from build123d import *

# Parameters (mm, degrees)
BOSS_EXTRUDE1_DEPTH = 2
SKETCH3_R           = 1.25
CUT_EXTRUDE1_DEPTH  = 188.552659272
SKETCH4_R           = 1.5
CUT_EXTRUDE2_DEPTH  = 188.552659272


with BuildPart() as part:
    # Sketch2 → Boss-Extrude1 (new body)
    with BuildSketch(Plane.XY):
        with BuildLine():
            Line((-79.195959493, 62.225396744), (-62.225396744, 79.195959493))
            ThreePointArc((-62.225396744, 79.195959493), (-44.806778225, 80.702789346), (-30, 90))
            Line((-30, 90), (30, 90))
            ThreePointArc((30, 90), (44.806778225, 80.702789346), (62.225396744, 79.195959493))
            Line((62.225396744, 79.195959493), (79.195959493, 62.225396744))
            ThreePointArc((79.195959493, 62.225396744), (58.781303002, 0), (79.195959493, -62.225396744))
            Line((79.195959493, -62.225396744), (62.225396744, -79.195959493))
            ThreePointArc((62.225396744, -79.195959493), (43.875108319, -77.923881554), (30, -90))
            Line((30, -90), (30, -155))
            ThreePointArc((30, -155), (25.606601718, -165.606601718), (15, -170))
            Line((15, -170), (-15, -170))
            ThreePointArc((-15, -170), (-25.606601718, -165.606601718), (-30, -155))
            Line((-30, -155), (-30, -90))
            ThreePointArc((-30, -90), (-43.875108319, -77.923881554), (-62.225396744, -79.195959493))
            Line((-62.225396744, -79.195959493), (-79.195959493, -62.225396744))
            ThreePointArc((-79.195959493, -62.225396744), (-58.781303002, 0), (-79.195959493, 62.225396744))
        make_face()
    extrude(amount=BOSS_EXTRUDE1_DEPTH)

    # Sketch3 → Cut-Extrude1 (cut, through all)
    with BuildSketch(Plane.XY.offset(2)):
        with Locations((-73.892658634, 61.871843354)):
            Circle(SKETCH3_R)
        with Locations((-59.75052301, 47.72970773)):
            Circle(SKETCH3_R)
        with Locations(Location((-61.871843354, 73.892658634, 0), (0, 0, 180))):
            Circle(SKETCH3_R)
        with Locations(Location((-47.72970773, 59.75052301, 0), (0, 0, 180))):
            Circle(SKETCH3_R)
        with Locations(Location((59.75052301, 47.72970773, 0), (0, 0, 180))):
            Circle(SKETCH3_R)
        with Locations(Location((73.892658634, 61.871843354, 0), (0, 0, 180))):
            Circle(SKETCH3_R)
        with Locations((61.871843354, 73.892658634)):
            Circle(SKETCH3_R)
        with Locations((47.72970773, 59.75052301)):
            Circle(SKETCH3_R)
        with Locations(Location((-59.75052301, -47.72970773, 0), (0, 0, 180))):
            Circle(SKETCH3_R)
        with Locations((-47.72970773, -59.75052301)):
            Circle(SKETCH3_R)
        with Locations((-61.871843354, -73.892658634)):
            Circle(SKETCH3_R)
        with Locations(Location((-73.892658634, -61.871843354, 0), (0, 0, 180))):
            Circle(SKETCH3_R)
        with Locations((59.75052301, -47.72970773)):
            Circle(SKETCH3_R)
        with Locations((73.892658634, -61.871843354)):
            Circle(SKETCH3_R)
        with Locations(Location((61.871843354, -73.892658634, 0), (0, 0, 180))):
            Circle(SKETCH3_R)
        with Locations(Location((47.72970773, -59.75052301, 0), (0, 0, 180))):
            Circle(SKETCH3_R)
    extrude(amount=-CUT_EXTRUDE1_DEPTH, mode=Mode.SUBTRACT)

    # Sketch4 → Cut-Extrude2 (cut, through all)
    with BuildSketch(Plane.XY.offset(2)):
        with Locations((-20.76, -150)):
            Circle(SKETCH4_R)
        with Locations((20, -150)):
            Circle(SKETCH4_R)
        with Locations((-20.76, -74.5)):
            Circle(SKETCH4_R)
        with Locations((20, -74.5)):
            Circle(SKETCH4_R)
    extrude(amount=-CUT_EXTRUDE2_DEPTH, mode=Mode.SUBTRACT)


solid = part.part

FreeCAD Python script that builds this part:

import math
import FreeCAD as App
import Part
import Sketcher

doc = App.newDocument("Part")
body = doc.addObject("PartDesign::Body", "Body")

# Sketch on XY plane
sketch1 = body.newObject("Sketcher::SketchObject", "Sketch")
sketch1.AttachmentSupport = (doc.getObject("XY_Plane"), [""])
sketch1.MapMode = "FlatFace"
sketch1.addGeometry([
    Part.LineSegment(App.Vector(-62, 79, 0), App.Vector(-79, 62, 0)),  # 0
    Part.ArcOfCircle(Part.Circle(App.Vector(-164, 0, 0), App.Vector(0, 0, 1), 105), math.radians(-36), math.radians(36)),  # 1
    Part.LineSegment(App.Vector(-79, -62, 0), App.Vector(-62, -79, 0)),  # 2
    Part.ArcOfCircle(Part.Circle(App.Vector(-52, -101, 0), App.Vector(0, 0, 1), 24), math.radians(26), math.radians(116)),  # 3
    Part.LineSegment(App.Vector(-30, -90, 0), App.Vector(-30, -155, 0)),  # 4
    Part.ArcOfCircle(Part.Circle(App.Vector(-15, -155, 0), App.Vector(0, 0, 1), 15), math.radians(180), math.radians(270)),  # 5
    Part.LineSegment(App.Vector(-15, -170, 0), App.Vector(15, -170, 0)),  # 6
    Part.ArcOfCircle(Part.Circle(App.Vector(15, -155, 0), App.Vector(0, 0, 1), 15), math.radians(-90), math.radians(0)),  # 7
    Part.LineSegment(App.Vector(30, -155, 0), App.Vector(30, -90, 0)),  # 8
    Part.ArcOfCircle(Part.Circle(App.Vector(52, -101, 0), App.Vector(0, 0, 1), 24), math.radians(64), math.radians(154)),  # 9
    Part.LineSegment(App.Vector(62, -79, 0), App.Vector(79, -62, 0)),  # 10
    Part.ArcOfCircle(Part.Circle(App.Vector(164, 0, 0), App.Vector(0, 0, 1), 105), math.radians(144), math.radians(216)),  # 11
    Part.LineSegment(App.Vector(79, 62, 0), App.Vector(62, 79, 0)),  # 12
    Part.ArcOfCircle(Part.Circle(App.Vector(57, 116, 0), App.Vector(0, 0, 1), 37), math.radians(-136), math.radians(-81)),  # 13
    Part.LineSegment(App.Vector(30, 90, 0), App.Vector(-30, 90, 0)),  # 14
    Part.ArcOfCircle(Part.Circle(App.Vector(-57, 116, 0), App.Vector(0, 0, 1), 37), math.radians(-99), math.radians(-44)),  # 15
], False)
sketch1.addConstraint([
    Sketcher.Constraint("Coincident", 0, 2, 1, 2),
    Sketcher.Constraint("Coincident", 1, 1, 2, 1),
    Sketcher.Constraint("Coincident", 2, 2, 3, 2),
    Sketcher.Constraint("Coincident", 3, 1, 4, 1),
    Sketcher.Constraint("Tangent", 4, 2, 5, 1),
    Sketcher.Constraint("Tangent", 5, 2, 6, 1),
    Sketcher.Constraint("Tangent", 6, 2, 7, 1),
    Sketcher.Constraint("Tangent", 7, 2, 8, 1),
    Sketcher.Constraint("Coincident", 8, 2, 9, 2),
    Sketcher.Constraint("Coincident", 9, 1, 10, 1),
    Sketcher.Constraint("Coincident", 10, 2, 11, 2),
    Sketcher.Constraint("Coincident", 11, 1, 12, 1),
    Sketcher.Constraint("Coincident", 12, 2, 13, 2),
    Sketcher.Constraint("Coincident", 13, 1, 14, 1),
    Sketcher.Constraint("Coincident", 14, 2, 15, 2),
    Sketcher.Constraint("Coincident", 15, 1, 0, 1),
    Sketcher.Constraint("Vertical", 4),
    Sketcher.Constraint("Horizontal", 6),
    Sketcher.Constraint("Vertical", 8),
    Sketcher.Constraint("Horizontal", 14),
    Sketcher.Constraint("Equal", 5, 7),
    Sketcher.Constraint("Equal", 3, 9),
    Sketcher.Constraint("Equal", 1, 11),
    Sketcher.Constraint("Equal", 13, 15),
    Sketcher.Constraint("Symmetric", 1, 3, 11, 3, -1, 1),
    Sketcher.Constraint("Symmetric", 2, 2, 12, 2, -1, 1),
    Sketcher.Constraint("Symmetric", 3, 1, 13, 1, -1, 1),
    Sketcher.Constraint("Symmetric", 8, 2, 14, 2, -1, 1),
    Sketcher.Constraint("Symmetric", 9, 1, 15, 1, -1, 1),
    Sketcher.Constraint("Symmetric", 3, 3, 9, 3, -2),
    Sketcher.Constraint("Symmetric", 1, 1, 10, 2, -2),
    Sketcher.Constraint("Perpendicular", 0, 2),
    Sketcher.Constraint("Perpendicular", 2, 10),
    Sketcher.Constraint("Perpendicular", 10, 12),
    Sketcher.Constraint("Horizontal", 13, 3, 15, 3),
    Sketcher.Constraint("Radius", 5, 15.0),
    Sketcher.Constraint("DistanceX", 6, 1, 6, 2, 30.0),
    Sketcher.Constraint("DistanceY", 4, 2, 4, 1, 65.0),
    Sketcher.Constraint("Distance", 0, 24.0),
    Sketcher.Constraint("DistanceY", 5, 3, -1, 1, 155.0),
    Sketcher.Constraint("Radius", 1, 105.041155),
    Sketcher.Constraint("Radius", 3, 24.033346),
    Sketcher.Constraint("Radius", 13, 37.202804),
    Sketcher.Constraint("DistanceX", 1, 3, 0, 2, 84.626499),
    Sketcher.Constraint("DistanceX", 1, 3, -1, 1, 163.822458),
])
pad1 = body.newObject("PartDesign::Pad", "Pad")
pad1.Profile = sketch1
pad1.Length = 2

# Sketch on XY plane
sketch2 = body.newObject("Sketcher::SketchObject", "Sketch001")
sketch2.AttachmentSupport = (doc.getObject("XY_Plane"), [""])
sketch2.MapMode = "FlatFace"
sketch2.AttachmentOffset = App.Placement(App.Vector(0, 0, 2), App.Rotation())
sketch2.addGeometry([
    Part.Circle(App.Vector(-73.9, 61.9, 0), App.Vector(0, 0, 1), 1.2),  # 0
    Part.Circle(App.Vector(-59.8, 47.7, 0), App.Vector(0, 0, 1), 1.2),  # 1
    Part.Circle(App.Vector(-61.9, 73.9, 0), App.Vector(0, 0, 1), 1.2),  # 2
    Part.Circle(App.Vector(-47.7, 59.8, 0), App.Vector(0, 0, 1), 1.2),  # 3
    Part.Circle(App.Vector(59.8, 47.7, 0), App.Vector(0, 0, 1), 1.2),  # 4
    Part.Circle(App.Vector(73.9, 61.9, 0), App.Vector(0, 0, 1), 1.2),  # 5
    Part.Circle(App.Vector(61.9, 73.9, 0), App.Vector(0, 0, 1), 1.2),  # 6
    Part.Circle(App.Vector(47.7, 59.8, 0), App.Vector(0, 0, 1), 1.2),  # 7
    Part.Circle(App.Vector(-59.8, -47.7, 0), App.Vector(0, 0, 1), 1.2),  # 8
    Part.Circle(App.Vector(-47.7, -59.8, 0), App.Vector(0, 0, 1), 1.2),  # 9
    Part.Circle(App.Vector(-61.9, -73.9, 0), App.Vector(0, 0, 1), 1.2),  # 10
    Part.Circle(App.Vector(-73.9, -61.9, 0), App.Vector(0, 0, 1), 1.2),  # 11
    Part.Circle(App.Vector(59.8, -47.7, 0), App.Vector(0, 0, 1), 1.2),  # 12
    Part.Circle(App.Vector(73.9, -61.9, 0), App.Vector(0, 0, 1), 1.2),  # 13
    Part.Circle(App.Vector(61.9, -73.9, 0), App.Vector(0, 0, 1), 1.2),  # 14
    Part.Circle(App.Vector(47.7, -59.8, 0), App.Vector(0, 0, 1), 1.2),  # 15
], False)
sketch2.addConstraint([
    Sketcher.Constraint("Equal", 0, 1),
    Sketcher.Constraint("Equal", 1, 2),
    Sketcher.Constraint("Equal", 2, 3),
    Sketcher.Constraint("Equal", 3, 4),
    Sketcher.Constraint("Equal", 4, 5),
    Sketcher.Constraint("Equal", 5, 6),
    Sketcher.Constraint("Equal", 6, 7),
    Sketcher.Constraint("Equal", 7, 8),
    Sketcher.Constraint("Equal", 8, 9),
    Sketcher.Constraint("Equal", 9, 10),
    Sketcher.Constraint("Equal", 10, 11),
    Sketcher.Constraint("Equal", 11, 12),
    Sketcher.Constraint("Equal", 12, 13),
    Sketcher.Constraint("Equal", 13, 14),
    Sketcher.Constraint("Equal", 14, 15),
    Sketcher.Constraint("Symmetric", 4, 3, 8, 3, -1, 1),
    Sketcher.Constraint("Symmetric", 7, 3, 9, 3, -1, 1),
    Sketcher.Constraint("Symmetric", 6, 3, 10, 3, -1, 1),
    Sketcher.Constraint("Symmetric", 5, 3, 11, 3, -1, 1),
    Sketcher.Constraint("Symmetric", 1, 3, 12, 3, -1, 1),
    Sketcher.Constraint("Symmetric", 0, 3, 13, 3, -1, 1),
    Sketcher.Constraint("Symmetric", 2, 3, 14, 3, -1, 1),
    Sketcher.Constraint("Symmetric", 3, 3, 15, 3, -1, 1),
    Sketcher.Constraint("Symmetric", 1, 3, 4, 3, -2),
    Sketcher.Constraint("Symmetric", 0, 3, 5, 3, -2),
    Sketcher.Constraint("Symmetric", 2, 3, 6, 3, -2),
    Sketcher.Constraint("Symmetric", 3, 3, 7, 3, -2),
    Sketcher.Constraint("Diameter", 0, 2.5),
    Sketcher.Constraint("DistanceX", 2, 3, 5, 3, 135.764502),
    Sketcher.Constraint("DistanceY", 10, 3, 0, 3, 135.764502),
    Sketcher.Constraint("DistanceX", 0, 3, -1, 1, 73.892659),
    Sketcher.Constraint("DistanceY", -1, 1, 2, 3, 73.892659),
    Sketcher.Constraint("DistanceX", 2, 3, 1, 3, 2.12132),
    Sketcher.Constraint("DistanceY", 1, 3, 2, 3, 26.162951),
    Sketcher.Constraint("DistanceX", 0, 3, 3, 3, 26.162951),
    Sketcher.Constraint("DistanceY", 3, 3, 0, 3, 2.12132),
])
pocket1 = body.newObject("PartDesign::Pocket", "Pocket")
pocket1.Profile = sketch2
pocket1.Type = "ThroughAll"

# Sketch on XY plane
sketch3 = body.newObject("Sketcher::SketchObject", "Sketch002")
sketch3.AttachmentSupport = (doc.getObject("XY_Plane"), [""])
sketch3.MapMode = "FlatFace"
sketch3.AttachmentOffset = App.Placement(App.Vector(0, 0, 2), App.Rotation())
sketch3.addGeometry([
    Part.Circle(App.Vector(-20.8, -150, 0), App.Vector(0, 0, 1), 1.5),
    Part.Circle(App.Vector(20, -150, 0), App.Vector(0, 0, 1), 1.5),
    Part.Circle(App.Vector(-20.8, -74.5, 0), App.Vector(0, 0, 1), 1.5),
    Part.Circle(App.Vector(20, -74.5, 0), App.Vector(0, 0, 1), 1.5),
], False)
sketch3.addConstraint([
    Sketcher.Constraint("Equal", 0, 1),
    Sketcher.Constraint("Equal", 1, 2),
    Sketcher.Constraint("Equal", 2, 3),
    Sketcher.Constraint("Horizontal", 0, 3, 1, 3),
    Sketcher.Constraint("Horizontal", 2, 3, 3, 3),
    Sketcher.Constraint("Vertical", 0, 3, 2, 3),
    Sketcher.Constraint("Vertical", 1, 3, 3, 3),
    Sketcher.Constraint("Diameter", 0, 3.0),
    Sketcher.Constraint("DistanceY", 0, 3, -1, 1, 150.0),
    Sketcher.Constraint("DistanceX", -1, 1, 1, 3, 20.0),
    Sketcher.Constraint("DistanceY", 2, 3, -1, 1, 74.5),
    Sketcher.Constraint("DistanceX", 0, 3, -1, 1, 20.76),
])
pocket2 = body.newObject("PartDesign::Pocket", "Pocket001")
pocket2.Profile = sketch3
pocket2.Type = "ThroughAll"

doc.recompute()
